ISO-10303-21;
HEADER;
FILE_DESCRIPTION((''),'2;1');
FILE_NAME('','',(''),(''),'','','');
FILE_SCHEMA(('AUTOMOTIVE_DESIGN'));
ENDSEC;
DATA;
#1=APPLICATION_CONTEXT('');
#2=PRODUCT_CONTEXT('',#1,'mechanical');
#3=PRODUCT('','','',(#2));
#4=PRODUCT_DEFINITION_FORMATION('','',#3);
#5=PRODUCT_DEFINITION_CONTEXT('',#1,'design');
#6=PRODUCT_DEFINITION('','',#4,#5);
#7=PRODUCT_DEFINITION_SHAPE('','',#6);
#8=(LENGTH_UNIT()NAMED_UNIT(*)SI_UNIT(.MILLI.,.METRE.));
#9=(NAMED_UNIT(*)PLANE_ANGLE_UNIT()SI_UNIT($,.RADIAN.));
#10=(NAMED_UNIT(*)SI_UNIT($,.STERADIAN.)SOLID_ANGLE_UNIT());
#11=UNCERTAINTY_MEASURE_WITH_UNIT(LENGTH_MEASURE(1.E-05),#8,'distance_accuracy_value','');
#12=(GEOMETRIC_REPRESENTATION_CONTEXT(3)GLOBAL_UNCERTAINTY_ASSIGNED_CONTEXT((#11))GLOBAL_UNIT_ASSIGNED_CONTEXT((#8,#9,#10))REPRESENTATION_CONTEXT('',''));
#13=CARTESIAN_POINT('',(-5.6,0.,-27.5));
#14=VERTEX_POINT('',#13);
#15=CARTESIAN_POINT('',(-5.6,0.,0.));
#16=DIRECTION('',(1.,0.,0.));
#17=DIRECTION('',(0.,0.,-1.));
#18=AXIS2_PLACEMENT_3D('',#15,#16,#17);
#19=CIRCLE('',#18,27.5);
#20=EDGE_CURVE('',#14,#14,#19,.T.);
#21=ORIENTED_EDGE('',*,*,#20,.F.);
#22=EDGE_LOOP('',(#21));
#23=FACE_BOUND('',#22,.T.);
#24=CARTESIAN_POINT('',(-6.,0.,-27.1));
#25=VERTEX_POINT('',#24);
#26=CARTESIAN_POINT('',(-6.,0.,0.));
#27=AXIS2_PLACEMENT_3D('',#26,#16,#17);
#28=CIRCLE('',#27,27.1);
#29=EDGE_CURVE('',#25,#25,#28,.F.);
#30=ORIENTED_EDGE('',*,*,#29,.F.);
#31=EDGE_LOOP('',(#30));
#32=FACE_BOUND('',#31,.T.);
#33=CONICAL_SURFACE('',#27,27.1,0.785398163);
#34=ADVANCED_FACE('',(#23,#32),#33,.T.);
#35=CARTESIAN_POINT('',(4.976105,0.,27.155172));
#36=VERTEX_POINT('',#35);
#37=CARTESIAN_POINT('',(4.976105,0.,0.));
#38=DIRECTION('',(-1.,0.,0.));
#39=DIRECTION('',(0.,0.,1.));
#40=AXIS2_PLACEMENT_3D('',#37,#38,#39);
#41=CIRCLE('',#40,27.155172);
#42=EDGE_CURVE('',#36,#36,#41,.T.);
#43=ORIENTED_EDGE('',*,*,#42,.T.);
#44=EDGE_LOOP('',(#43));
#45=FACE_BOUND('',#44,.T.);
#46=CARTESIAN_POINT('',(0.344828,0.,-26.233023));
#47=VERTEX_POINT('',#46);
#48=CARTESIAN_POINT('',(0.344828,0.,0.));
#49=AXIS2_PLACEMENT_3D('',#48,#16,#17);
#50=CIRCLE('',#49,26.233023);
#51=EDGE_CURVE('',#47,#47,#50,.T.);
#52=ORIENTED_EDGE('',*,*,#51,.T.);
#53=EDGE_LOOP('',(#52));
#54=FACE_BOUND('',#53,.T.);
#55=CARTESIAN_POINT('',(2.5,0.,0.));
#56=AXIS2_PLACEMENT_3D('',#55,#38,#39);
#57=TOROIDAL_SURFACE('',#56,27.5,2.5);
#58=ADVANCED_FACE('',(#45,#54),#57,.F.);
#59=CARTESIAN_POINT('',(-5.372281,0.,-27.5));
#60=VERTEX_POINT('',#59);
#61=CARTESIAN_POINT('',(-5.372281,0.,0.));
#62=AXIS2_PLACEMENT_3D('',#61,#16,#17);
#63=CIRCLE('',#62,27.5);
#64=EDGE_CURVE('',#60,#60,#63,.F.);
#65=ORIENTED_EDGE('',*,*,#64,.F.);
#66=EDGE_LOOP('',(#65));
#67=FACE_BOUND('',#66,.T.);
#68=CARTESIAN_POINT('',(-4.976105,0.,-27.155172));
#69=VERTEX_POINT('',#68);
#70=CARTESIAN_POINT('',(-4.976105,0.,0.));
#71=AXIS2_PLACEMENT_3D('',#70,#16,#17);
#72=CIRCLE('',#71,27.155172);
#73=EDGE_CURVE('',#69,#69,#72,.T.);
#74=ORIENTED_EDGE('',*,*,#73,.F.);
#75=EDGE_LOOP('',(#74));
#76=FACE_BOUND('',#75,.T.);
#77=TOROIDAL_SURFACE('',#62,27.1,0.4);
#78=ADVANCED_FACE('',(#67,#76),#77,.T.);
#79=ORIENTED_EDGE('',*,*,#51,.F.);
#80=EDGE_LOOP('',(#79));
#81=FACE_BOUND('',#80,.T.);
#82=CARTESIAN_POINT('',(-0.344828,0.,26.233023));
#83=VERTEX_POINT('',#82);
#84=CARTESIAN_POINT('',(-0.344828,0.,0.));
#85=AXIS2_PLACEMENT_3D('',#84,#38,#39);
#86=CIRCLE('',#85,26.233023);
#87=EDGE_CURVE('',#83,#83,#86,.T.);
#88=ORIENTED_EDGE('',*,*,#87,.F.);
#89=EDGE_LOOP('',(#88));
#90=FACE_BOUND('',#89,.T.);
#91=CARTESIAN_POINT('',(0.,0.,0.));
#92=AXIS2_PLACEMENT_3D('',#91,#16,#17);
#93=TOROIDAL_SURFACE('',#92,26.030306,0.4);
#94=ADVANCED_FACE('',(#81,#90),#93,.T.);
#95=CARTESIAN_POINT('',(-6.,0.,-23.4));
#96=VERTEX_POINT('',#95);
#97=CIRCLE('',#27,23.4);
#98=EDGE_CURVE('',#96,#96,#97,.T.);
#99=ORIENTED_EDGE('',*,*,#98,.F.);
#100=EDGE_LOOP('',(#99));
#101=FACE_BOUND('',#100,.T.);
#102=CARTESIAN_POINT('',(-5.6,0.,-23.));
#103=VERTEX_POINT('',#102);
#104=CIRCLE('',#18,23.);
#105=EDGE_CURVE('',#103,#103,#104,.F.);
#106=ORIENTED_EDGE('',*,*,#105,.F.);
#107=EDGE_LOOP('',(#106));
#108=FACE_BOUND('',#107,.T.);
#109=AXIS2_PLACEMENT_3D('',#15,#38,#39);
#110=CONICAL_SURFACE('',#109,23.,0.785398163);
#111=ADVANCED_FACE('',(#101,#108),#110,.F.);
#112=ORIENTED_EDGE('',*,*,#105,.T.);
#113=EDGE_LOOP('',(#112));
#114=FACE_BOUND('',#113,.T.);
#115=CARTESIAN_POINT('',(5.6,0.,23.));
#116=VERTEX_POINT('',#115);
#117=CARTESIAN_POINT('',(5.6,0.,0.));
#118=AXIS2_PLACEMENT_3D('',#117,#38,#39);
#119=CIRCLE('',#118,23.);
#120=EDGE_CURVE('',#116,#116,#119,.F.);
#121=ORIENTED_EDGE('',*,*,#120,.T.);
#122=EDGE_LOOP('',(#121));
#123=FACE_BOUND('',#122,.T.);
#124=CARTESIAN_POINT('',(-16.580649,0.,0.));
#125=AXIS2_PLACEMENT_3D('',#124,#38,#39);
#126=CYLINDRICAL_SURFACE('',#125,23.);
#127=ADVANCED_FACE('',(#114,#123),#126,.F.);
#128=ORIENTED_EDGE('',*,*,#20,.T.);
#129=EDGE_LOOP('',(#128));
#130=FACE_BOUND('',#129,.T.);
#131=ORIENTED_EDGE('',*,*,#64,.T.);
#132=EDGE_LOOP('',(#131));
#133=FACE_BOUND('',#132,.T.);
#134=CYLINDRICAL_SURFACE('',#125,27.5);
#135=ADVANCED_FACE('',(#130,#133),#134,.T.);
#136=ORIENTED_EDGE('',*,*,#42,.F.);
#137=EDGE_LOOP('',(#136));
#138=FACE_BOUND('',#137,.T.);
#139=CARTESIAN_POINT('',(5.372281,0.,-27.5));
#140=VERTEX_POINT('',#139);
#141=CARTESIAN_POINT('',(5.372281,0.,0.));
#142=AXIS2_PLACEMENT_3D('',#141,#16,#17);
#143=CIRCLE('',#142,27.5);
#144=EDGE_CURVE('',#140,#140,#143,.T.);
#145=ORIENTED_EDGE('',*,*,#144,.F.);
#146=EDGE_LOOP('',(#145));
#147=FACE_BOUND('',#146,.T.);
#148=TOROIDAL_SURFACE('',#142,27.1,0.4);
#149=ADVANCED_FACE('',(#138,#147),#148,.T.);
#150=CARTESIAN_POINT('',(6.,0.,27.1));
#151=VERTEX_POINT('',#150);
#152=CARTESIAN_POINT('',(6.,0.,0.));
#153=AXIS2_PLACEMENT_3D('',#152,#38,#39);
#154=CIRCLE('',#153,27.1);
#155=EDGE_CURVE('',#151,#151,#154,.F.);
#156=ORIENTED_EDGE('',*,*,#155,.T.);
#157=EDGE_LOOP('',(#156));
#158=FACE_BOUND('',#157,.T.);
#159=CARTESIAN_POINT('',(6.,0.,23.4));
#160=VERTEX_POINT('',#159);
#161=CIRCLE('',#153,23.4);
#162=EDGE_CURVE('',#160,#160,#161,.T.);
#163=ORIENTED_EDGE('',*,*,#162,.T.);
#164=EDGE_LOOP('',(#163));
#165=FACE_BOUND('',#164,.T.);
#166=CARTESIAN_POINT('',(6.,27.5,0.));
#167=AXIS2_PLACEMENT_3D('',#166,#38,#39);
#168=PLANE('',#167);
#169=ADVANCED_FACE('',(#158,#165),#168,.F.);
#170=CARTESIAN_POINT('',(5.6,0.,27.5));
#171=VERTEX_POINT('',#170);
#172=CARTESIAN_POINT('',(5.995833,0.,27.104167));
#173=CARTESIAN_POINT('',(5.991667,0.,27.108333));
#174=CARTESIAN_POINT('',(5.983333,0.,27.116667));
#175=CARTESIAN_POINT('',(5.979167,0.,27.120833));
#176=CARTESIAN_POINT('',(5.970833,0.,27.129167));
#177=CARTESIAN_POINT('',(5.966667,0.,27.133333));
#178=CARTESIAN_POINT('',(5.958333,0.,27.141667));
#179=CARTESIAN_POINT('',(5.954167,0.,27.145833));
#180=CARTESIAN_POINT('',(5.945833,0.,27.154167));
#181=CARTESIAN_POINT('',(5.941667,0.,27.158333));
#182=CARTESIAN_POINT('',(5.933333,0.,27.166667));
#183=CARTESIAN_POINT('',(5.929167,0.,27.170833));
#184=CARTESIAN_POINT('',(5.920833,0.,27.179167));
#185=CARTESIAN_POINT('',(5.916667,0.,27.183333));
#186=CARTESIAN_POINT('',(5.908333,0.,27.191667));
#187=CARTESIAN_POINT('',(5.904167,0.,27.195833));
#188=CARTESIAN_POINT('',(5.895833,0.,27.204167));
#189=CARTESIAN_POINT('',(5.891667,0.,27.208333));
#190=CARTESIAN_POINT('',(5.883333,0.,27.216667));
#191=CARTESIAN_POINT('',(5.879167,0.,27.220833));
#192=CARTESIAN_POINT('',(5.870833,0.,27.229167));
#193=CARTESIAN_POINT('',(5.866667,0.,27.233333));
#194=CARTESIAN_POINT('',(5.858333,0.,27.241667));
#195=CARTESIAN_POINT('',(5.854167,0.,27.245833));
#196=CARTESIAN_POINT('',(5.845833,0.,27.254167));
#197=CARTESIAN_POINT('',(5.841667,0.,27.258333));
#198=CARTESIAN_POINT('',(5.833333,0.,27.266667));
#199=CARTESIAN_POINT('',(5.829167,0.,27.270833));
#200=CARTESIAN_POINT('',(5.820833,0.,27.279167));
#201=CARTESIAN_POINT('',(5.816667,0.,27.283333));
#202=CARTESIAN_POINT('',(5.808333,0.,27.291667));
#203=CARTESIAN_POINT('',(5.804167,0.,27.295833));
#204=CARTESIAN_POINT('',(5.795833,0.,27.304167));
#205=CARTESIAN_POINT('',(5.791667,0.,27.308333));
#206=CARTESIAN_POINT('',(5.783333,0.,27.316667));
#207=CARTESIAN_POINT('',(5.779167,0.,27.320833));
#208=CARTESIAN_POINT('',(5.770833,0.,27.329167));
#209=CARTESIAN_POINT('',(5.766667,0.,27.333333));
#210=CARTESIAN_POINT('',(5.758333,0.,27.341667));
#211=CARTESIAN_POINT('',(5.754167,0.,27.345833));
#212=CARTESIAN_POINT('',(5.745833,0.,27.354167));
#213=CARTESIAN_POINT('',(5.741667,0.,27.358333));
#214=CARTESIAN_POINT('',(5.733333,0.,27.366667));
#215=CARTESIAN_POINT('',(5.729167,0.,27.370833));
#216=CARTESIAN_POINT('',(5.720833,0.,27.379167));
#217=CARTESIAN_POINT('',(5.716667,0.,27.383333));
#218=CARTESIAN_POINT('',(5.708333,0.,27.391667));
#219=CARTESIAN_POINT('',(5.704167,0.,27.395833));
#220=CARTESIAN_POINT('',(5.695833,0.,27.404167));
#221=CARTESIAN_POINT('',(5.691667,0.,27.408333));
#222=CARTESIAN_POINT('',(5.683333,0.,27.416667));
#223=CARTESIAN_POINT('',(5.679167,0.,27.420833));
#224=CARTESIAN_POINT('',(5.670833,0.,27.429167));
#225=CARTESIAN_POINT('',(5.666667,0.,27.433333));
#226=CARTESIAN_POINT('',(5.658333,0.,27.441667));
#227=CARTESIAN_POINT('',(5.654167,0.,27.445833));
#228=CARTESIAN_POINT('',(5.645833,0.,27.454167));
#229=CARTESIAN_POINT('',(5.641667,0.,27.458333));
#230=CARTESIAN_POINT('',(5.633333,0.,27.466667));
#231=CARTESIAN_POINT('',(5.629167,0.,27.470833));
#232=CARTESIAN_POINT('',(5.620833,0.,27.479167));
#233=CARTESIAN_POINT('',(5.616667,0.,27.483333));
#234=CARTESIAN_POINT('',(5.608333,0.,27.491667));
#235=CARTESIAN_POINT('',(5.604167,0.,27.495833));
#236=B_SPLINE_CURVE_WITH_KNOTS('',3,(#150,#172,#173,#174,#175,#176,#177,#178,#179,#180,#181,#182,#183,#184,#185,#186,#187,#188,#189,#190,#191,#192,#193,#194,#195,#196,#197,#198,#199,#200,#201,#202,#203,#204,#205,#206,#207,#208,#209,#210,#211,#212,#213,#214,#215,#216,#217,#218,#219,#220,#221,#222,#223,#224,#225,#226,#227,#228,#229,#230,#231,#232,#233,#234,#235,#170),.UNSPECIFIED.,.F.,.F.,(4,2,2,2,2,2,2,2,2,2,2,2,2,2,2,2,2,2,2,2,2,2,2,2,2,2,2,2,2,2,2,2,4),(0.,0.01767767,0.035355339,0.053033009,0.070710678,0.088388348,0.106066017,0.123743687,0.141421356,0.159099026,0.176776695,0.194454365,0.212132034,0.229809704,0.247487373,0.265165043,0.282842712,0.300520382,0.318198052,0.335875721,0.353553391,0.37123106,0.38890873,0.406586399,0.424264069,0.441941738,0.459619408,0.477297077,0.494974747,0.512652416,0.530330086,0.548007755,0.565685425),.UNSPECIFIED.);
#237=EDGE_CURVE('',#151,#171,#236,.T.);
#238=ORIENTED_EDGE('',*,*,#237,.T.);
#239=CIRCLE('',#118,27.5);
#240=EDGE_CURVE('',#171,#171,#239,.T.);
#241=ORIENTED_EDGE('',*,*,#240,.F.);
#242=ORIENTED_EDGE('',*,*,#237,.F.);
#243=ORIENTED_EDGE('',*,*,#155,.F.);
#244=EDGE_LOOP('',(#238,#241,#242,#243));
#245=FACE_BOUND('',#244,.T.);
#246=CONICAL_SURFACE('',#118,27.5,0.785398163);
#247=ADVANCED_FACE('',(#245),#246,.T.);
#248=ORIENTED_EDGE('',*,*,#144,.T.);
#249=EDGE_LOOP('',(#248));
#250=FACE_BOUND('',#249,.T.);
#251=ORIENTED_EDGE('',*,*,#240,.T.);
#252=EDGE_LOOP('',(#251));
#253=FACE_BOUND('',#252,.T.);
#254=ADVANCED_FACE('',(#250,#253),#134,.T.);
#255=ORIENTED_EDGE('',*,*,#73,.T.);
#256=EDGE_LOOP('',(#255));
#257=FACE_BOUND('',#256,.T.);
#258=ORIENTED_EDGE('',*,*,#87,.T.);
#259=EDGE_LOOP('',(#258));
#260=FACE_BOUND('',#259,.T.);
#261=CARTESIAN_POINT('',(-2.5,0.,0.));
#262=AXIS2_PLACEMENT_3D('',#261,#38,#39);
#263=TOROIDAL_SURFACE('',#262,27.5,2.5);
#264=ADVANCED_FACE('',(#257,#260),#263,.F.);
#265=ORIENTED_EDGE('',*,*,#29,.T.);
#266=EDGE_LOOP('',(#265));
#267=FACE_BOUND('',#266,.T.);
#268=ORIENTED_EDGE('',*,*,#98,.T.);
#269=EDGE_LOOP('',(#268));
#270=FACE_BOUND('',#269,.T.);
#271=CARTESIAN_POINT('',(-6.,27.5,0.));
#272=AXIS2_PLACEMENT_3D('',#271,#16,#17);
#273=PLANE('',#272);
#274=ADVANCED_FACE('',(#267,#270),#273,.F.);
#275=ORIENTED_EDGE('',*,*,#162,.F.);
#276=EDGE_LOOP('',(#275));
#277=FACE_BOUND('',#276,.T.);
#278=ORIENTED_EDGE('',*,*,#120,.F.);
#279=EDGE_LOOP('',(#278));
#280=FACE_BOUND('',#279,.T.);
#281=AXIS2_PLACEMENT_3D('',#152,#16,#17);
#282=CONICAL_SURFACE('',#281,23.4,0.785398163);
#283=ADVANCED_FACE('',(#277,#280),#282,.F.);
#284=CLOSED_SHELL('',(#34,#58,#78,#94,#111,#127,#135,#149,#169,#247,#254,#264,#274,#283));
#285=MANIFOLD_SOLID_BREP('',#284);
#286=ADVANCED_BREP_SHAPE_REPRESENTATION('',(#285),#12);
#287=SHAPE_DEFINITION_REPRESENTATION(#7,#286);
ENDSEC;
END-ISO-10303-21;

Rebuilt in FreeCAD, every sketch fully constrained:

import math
import FreeCAD as App
import Part
import Sketcher
from FreeCAD import Vector


def edges_at(feature, points):
    """Names of the edges that pass closest to the given points."""
    edges = feature.Shape.Edges
    near = lambda p: min(range(len(edges)), key=lambda i: edges[i].distToShape(Part.Vertex(*p))[0])
    return sorted({f"Edge{near(p) + 1}" for p in points})

doc = App.newDocument("Part")
body = doc.addObject("PartDesign::Body", "Body")

# Sketch on XY plane
sketch1 = body.newObject("Sketcher::SketchObject", "Sketch")
sketch1.AttachmentSupport = (doc.getObject("XY_Plane"), [""])
sketch1.MapMode = "FlatFace"
sketch1.addGeometry([
    Part.LineSegment(Vector(-6, 23, 0), Vector(6, 23, 0)),  # 0
    Part.LineSegment(Vector(6, 23, 0), Vector(6, 27.5, 0)),  # 1
    Part.LineSegment(Vector(6, 27.5, 0), Vector(5, 27.5, 0)),  # 2
    Part.ArcOfCircle(Part.Circle(Vector(2.5, 27.5, 0), Vector(0, 0, 1), 2.5), math.radians(180), math.radians(360)),  # 3
    Part.ArcOfCircle(Part.Circle(Vector(-2.5, 27.5, 0), Vector(0, 0, 1), 2.5), math.radians(180), math.radians(360)),  # 4
    Part.LineSegment(Vector(-5, 27.5, 0), Vector(-6, 27.5, 0)),  # 5
    Part.LineSegment(Vector(-6, 27.5, 0), Vector(-6, 23, 0)),  # 6
], False)
sketch1.addConstraint([
    Sketcher.Constraint("Coincident", 0, 2, 1, 1),
    Sketcher.Constraint("Coincident", 1, 2, 2, 1),
    Sketcher.Constraint("Coincident", 2, 2, 3, 2),
    Sketcher.Constraint("Tangent", 3, 1, 4, 2),
    Sketcher.Constraint("Coincident", 4, 1, 5, 1),
    Sketcher.Constraint("Coincident", 5, 2, 6, 1),
    Sketcher.Constraint("Coincident", 6, 2, 0, 1),
    Sketcher.Constraint("Horizontal", 0),
    Sketcher.Constraint("Vertical", 1),
    Sketcher.Constraint("Horizontal", 2),
    Sketcher.Constraint("Horizontal", 5),
    Sketcher.Constraint("Vertical", 6),
    Sketcher.Constraint("Equal", 3, 4),
    Sketcher.Constraint("Symmetric", 3, 3, 4, 3, -2),
    Sketcher.Constraint("Symmetric", 1, 2, 5, 2, -2),
    Sketcher.Constraint("Horizontal", 4, 3, 1, 2),
    Sketcher.Constraint("Radius", 3, 2.5),
    Sketcher.Constraint("DistanceX", 0, 1, 0, 2, 12.0),
    Sketcher.Constraint("DistanceY", 1, 1, 1, 2, 4.5),
    Sketcher.Constraint("DistanceY", -1, 1, 0, 2, 23.0),
])
revolution = body.newObject("PartDesign::Revolution", "Revolution")
revolution.Profile = sketch1
revolution.ReferenceAxis = (sketch1, ["H_Axis"])
revolution.Angle = 360
doc.recompute()

fillet = body.newObject("PartDesign::Fillet", "Fillet")
fillet.Base = (revolution, edges_at(revolution, [(0, 0, -27.5), (5, 0, -27.5), (-5, 0, -27.5)]))
fillet.Radius = 0.4
doc.recompute()

chamfer = body.newObject("PartDesign::Chamfer", "Chamfer")
chamfer.Base = (fillet, edges_at(fillet, [
    (6, 0, -27.5),
    (6, 0, -23),
    (-6, 0, -23),
    (-6, 0, -27.5),
]))
chamfer.Size = 0.4

doc.recompute()
